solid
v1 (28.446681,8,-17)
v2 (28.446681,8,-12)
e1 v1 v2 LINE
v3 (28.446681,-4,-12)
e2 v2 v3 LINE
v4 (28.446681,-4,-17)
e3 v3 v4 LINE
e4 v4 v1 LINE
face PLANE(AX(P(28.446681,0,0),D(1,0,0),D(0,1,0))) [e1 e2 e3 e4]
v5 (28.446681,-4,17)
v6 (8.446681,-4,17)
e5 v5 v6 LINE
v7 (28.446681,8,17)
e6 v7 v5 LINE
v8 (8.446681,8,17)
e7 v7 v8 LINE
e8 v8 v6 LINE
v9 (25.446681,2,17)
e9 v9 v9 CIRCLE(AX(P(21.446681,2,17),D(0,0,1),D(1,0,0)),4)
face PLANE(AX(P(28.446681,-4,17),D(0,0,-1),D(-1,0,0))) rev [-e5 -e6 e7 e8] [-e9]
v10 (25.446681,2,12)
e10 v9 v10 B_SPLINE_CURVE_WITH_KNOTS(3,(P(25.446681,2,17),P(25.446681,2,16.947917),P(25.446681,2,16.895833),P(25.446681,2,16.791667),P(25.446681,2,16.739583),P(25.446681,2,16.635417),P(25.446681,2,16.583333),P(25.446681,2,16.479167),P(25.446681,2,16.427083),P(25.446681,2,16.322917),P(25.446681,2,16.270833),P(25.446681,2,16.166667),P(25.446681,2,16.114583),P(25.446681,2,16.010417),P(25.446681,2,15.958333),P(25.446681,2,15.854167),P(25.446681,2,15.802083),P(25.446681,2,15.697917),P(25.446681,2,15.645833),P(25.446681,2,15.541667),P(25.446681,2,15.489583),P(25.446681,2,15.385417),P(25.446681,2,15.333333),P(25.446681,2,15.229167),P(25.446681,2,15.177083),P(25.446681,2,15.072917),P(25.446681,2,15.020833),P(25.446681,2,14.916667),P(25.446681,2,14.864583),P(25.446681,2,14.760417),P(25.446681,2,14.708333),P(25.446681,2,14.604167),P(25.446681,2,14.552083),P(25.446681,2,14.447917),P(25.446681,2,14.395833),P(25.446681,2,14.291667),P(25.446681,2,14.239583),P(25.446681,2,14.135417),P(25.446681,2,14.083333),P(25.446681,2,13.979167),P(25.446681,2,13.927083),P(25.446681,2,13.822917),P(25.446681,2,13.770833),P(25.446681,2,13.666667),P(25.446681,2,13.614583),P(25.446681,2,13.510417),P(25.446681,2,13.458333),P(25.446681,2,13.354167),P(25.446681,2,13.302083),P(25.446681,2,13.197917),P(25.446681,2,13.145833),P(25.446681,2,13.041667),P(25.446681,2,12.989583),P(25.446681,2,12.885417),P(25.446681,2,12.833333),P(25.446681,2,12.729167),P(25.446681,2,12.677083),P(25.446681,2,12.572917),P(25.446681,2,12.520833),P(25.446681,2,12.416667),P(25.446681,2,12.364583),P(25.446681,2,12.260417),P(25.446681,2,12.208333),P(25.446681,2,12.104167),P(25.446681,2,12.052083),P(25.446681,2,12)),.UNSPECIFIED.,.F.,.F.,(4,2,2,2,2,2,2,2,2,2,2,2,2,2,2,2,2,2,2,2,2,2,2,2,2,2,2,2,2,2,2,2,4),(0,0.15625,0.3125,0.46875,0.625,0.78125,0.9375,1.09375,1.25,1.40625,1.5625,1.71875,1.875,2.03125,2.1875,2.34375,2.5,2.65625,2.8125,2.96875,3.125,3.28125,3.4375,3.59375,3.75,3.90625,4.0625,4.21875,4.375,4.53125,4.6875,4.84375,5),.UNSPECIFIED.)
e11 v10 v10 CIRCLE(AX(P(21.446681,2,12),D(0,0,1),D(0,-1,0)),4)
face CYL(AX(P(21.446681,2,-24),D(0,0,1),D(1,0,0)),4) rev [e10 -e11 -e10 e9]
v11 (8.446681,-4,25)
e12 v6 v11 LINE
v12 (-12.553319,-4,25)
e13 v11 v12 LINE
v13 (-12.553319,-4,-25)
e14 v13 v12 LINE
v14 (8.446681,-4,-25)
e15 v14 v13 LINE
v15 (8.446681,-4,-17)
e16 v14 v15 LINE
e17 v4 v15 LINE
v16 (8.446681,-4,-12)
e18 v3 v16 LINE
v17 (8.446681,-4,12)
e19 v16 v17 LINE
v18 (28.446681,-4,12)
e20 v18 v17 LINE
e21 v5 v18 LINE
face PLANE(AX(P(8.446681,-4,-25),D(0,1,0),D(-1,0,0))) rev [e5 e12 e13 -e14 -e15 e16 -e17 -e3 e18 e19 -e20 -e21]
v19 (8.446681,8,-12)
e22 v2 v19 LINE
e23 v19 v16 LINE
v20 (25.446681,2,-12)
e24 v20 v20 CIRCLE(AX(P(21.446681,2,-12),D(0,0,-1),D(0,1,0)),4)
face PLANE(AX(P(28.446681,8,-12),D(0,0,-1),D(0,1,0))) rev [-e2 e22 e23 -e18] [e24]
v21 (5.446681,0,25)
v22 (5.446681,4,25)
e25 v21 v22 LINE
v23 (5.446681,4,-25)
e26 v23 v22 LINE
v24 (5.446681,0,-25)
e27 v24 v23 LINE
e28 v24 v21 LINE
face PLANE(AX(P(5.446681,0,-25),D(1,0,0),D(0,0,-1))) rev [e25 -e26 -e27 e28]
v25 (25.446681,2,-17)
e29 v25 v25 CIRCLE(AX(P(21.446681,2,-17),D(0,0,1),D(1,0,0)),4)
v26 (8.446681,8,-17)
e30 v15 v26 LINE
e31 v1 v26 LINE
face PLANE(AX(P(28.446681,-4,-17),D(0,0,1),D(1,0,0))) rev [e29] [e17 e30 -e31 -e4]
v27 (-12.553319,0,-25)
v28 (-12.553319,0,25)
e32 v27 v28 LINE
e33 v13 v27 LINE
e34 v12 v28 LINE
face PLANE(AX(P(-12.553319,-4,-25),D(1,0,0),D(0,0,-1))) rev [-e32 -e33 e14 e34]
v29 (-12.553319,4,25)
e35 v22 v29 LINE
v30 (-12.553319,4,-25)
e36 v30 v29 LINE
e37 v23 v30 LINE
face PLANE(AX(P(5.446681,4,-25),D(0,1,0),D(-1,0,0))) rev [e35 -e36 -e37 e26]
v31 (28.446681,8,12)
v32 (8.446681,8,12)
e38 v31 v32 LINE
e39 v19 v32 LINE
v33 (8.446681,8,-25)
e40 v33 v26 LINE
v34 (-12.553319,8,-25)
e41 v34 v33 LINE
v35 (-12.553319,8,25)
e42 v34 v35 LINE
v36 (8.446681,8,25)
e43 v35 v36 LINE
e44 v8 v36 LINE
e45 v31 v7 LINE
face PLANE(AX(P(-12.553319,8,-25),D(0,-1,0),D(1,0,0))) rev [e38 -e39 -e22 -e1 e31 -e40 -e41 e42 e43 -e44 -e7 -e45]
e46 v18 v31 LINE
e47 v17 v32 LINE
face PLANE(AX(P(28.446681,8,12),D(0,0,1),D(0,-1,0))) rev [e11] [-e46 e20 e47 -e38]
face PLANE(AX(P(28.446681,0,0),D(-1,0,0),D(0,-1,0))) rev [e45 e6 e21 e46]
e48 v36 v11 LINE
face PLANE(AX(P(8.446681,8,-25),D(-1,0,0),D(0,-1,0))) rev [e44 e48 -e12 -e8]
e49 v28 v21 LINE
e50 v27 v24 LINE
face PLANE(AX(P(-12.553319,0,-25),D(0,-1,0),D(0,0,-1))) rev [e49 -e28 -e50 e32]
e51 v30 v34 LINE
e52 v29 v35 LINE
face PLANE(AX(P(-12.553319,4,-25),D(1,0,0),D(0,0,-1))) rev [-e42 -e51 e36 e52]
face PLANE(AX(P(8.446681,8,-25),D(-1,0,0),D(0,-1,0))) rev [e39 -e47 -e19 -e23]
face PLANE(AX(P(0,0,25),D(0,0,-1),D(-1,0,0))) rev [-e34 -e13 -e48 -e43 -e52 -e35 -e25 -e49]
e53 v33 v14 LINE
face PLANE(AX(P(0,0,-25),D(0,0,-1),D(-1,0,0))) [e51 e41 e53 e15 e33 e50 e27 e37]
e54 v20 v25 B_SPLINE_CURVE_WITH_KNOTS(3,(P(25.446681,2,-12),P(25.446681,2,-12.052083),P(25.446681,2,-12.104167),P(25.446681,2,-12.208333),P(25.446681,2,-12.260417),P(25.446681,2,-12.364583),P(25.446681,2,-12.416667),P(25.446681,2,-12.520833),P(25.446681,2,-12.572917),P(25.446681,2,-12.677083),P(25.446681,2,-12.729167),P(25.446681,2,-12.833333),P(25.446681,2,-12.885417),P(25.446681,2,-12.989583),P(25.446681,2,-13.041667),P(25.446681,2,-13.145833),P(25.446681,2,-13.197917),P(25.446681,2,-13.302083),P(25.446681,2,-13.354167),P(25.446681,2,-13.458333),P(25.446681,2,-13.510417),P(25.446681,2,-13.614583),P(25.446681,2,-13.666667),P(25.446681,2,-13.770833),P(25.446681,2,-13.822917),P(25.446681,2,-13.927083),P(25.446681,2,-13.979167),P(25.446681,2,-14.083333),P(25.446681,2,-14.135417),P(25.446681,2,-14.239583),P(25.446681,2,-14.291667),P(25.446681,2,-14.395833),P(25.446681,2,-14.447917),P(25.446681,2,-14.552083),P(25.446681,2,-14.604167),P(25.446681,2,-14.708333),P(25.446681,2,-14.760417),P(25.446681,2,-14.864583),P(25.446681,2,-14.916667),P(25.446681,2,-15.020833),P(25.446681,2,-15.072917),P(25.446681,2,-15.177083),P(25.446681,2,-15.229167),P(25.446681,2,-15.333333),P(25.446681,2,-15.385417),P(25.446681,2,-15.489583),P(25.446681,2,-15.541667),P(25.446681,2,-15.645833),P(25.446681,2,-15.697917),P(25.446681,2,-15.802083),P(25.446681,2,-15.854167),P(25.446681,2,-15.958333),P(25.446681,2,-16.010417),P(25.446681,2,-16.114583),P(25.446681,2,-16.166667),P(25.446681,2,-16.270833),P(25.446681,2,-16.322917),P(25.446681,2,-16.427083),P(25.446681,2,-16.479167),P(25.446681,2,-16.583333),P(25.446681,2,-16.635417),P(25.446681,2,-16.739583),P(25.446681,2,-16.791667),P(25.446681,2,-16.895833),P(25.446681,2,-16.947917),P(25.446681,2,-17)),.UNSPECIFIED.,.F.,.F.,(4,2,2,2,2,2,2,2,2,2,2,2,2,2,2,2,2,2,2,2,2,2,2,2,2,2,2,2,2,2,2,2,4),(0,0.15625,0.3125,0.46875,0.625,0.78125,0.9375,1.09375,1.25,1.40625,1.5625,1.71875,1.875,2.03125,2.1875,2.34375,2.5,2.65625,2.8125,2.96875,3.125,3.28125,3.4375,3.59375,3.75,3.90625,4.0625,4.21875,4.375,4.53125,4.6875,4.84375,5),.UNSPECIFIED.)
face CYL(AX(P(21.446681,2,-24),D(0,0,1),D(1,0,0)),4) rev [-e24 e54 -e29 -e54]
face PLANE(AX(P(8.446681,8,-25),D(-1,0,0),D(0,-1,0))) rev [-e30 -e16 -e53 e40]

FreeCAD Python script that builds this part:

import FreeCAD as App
import Part
import Sketcher
Q = App.Units.Quantity

doc = App.newDocument("Part")
body = doc.addObject("PartDesign::Body", "Body")

# Sketch on XY plane
sketch1 = body.newObject("Sketcher::SketchObject", "Sketch")
sketch1.AttachmentSupport = (doc.getObject("XY_Plane"), [""])
sketch1.MapMode = "FlatFace"
sketch1.addGeometry([
    Part.LineSegment(App.Vector(5.4, 0, 0), App.Vector(-12.6, 0, 0)),  # 0
    Part.LineSegment(App.Vector(-12.6, 0, 0), App.Vector(-12.6, -4, 0)),  # 1
    Part.LineSegment(App.Vector(-12.6, -4, 0), App.Vector(8.4, -4, 0)),  # 2
    Part.LineSegment(App.Vector(8.4, -4, 0), App.Vector(8.4, 8, 0)),  # 3
    Part.LineSegment(App.Vector(8.4, 8, 0), App.Vector(-12.6, 8, 0)),  # 4
    Part.LineSegment(App.Vector(-12.6, 8, 0), App.Vector(-12.6, 4, 0)),  # 5
    Part.LineSegment(App.Vector(-12.6, 4, 0), App.Vector(5.4, 4, 0)),  # 6
    Part.LineSegment(App.Vector(5.4, 4, 0), App.Vector(5.4, 0, 0)),  # 7
], False)
sketch1.addConstraint([
    Sketcher.Constraint("Coincident", 0, 2, 1, 1),
    Sketcher.Constraint("Coincident", 1, 2, 2, 1),
    Sketcher.Constraint("Coincident", 2, 2, 3, 1),
    Sketcher.Constraint("Coincident", 3, 2, 4, 1),
    Sketcher.Constraint("Coincident", 4, 2, 5, 1),
    Sketcher.Constraint("Coincident", 5, 2, 6, 1),
    Sketcher.Constraint("Coincident", 6, 2, 7, 1),
    Sketcher.Constraint("Coincident", 7, 2, 0, 1),
    Sketcher.Constraint("Horizontal", 0),
    Sketcher.Constraint("Vertical", 1),
    Sketcher.Constraint("Horizontal", 2),
    Sketcher.Constraint("Vertical", 3),
    Sketcher.Constraint("Horizontal", 4),
    Sketcher.Constraint("Vertical", 5),
    Sketcher.Constraint("Horizontal", 6),
    Sketcher.Constraint("Vertical", 7),
    Sketcher.Constraint("Symmetric", 1, 2, 5, 2, -1),
    Sketcher.Constraint("PointOnObject", 0, 2, -1),
    Sketcher.Constraint("Equal", 1, 5),
    Sketcher.Constraint("DistanceX", 0, 2, 0, 1, Q("18 mm")),
    Sketcher.Constraint("DistanceX", 2, 1, 2, 2, Q("21 mm")),
    Sketcher.Constraint("DistanceY", 1, 2, 1, 1, Q("4 mm")),
    Sketcher.Constraint("DistanceX", 0, 2, -1, 1, Q("12.553319 mm")),
])
pad1 = body.newObject("PartDesign::Pad", "Pad")
pad1.Profile = sketch1
pad1.Type = "TwoLengths"
pad1.Length = 25
pad1.Length2 = 25

# Sketch on YZ plane
sketch2 = body.newObject("Sketcher::SketchObject", "Sketch001")
sketch2.AttachmentSupport = (doc.getObject("YZ_Plane"), [""])
sketch2.MapMode = "FlatFace"
sketch2.AttachmentOffset = App.Placement(App.Vector(0, 0, 8.446681), App.Rotation())
sketch2.addGeometry([
    Part.LineSegment(App.Vector(8, 17, 0), App.Vector(-4, 17, 0)),  # 0
    Part.LineSegment(App.Vector(-4, 17, 0), App.Vector(-4, 12, 0)),  # 1
    Part.LineSegment(App.Vector(-4, 12, 0), App.Vector(8, 12, 0)),  # 2
    Part.LineSegment(App.Vector(8, 12, 0), App.Vector(8, 17, 0)),  # 3
    Part.LineSegment(App.Vector(8, -12, 0), App.Vector(-4, -12, 0)),  # 4
    Part.LineSegment(App.Vector(-4, -12, 0), App.Vector(-4, -17, 0)),  # 5
    Part.LineSegment(App.Vector(-4, -17, 0), App.Vector(8, -17, 0)),  # 6
    Part.LineSegment(App.Vector(8, -17, 0), App.Vector(8, -12, 0)),  # 7
], False)
sketch2.addConstraint([
    Sketcher.Constraint("Coincident", 0, 2, 1, 1),
    Sketcher.Constraint("Coincident", 1, 2, 2, 1),
    Sketcher.Constraint("Coincident", 2, 2, 3, 1),
    Sketcher.Constraint("Coincident", 3, 2, 0, 1),
    Sketcher.Constraint("Coincident", 4, 2, 5, 1),
    Sketcher.Constraint("Coincident", 5, 2, 6, 1),
    Sketcher.Constraint("Coincident", 6, 2, 7, 1),
    Sketcher.Constraint("Coincident", 7, 2, 4, 1),
    Sketcher.Constraint("Horizontal", 0),
    Sketcher.Constraint("Vertical", 1),
    Sketcher.Constraint("Horizontal", 2),
    Sketcher.Constraint("Vertical", 3),
    Sketcher.Constraint("Horizontal", 4),
    Sketcher.Constraint("Vertical", 5),
    Sketcher.Constraint("Horizontal", 6),
    Sketcher.Constraint("Vertical", 7),
    Sketcher.Constraint("Symmetric", 1, 2, 4, 2, -1),
    Sketcher.Constraint("Symmetric", 3, 2, 6, 2, -1),
    Sketcher.Constraint("DistanceX", 0, 2, 0, 1, Q("12 mm")),
    Sketcher.Constraint("DistanceY", 1, 2, 1, 1, Q("5 mm")),
    Sketcher.Constraint("DistanceX", 0, 2, -1, 1, Q("4 mm")),
    Sketcher.Constraint("DistanceY", -1, 1, 0, 2, Q("17 mm")),
])
pad2 = body.newObject("PartDesign::Pad", "Pad001")
pad2.Profile = sketch2
pad2.Length = 20

# Sketch on XY plane
sketch3 = body.newObject("Sketcher::SketchObject", "Sketch002")
sketch3.AttachmentSupport = (doc.getObject("XY_Plane"), [""])
sketch3.MapMode = "FlatFace"
sketch3.AttachmentOffset = App.Placement(App.Vector(0, 0, 17), App.Rotation())
sketch3.addGeometry(Part.Circle(App.Vector(21.4, 2, 0), App.Vector(0, 0, 1), 4), False)
sketch3.addConstraint([
    Sketcher.Constraint("Diameter", 0, Q("8 mm")),
    Sketcher.Constraint("DistanceY", -1, 1, 0, 3, Q("2 mm")),
    Sketcher.Constraint("DistanceX", -1, 1, 0, 3, Q("21.446681 mm")),
])
pocket1 = body.newObject("PartDesign::Pocket", "Pocket")
pocket1.Profile = sketch3
pocket1.Length = 41

doc.recompute()
